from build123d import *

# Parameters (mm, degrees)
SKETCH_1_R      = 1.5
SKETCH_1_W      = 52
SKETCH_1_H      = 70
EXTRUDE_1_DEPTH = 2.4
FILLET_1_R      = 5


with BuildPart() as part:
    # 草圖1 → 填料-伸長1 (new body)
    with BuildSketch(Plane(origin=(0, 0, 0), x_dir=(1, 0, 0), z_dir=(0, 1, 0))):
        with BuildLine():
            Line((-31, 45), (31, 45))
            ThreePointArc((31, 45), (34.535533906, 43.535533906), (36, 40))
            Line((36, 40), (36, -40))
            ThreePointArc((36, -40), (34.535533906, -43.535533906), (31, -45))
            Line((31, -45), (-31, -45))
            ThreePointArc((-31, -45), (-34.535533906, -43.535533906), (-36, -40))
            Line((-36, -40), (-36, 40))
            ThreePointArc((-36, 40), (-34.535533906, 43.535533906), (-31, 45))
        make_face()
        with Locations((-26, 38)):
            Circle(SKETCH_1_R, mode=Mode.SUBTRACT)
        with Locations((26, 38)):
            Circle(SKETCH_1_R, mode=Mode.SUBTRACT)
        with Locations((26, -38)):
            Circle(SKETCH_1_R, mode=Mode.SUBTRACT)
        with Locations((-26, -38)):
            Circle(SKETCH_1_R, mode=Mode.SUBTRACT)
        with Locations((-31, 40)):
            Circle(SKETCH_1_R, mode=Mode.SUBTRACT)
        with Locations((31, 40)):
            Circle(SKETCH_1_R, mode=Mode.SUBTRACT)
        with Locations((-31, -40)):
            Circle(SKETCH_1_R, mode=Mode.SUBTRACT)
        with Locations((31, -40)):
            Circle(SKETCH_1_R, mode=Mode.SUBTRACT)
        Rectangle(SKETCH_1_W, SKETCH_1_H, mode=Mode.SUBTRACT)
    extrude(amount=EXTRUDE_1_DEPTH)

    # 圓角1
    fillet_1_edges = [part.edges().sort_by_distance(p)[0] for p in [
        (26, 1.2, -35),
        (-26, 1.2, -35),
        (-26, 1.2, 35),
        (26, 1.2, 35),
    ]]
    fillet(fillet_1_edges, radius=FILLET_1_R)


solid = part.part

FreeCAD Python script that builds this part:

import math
import FreeCAD as App
import Part
import Sketcher
from FreeCAD import Vector


def edges_at(feature, points):
    """Names of the edges that pass closest to the given points."""
    edges = feature.Shape.Edges
    near = lambda p: min(range(len(edges)), key=lambda i: edges[i].distToShape(Part.Vertex(*p))[0])
    return sorted({f"Edge{near(p) + 1}" for p in points})


def add_polygon(sketch, points):
    """Adds a closed chain of lines whose ends are joined by coincident constraints."""
    first, n = sketch.GeometryCount, len(points)
    for a, b in zip(points, points[1:] + points[:1]):
        sketch.addGeometry(Part.LineSegment(App.Vector(*a, 0), App.Vector(*b, 0)), False)
    for i in range(n):
        sketch.addConstraint(Sketcher.Constraint("Coincident", first + i, 2, first + (i + 1) % n, 1))

doc = App.newDocument("Part")
body = doc.addObject("PartDesign::Body", "Body")

# Sketch on XZ plane
sketch1 = body.newObject("Sketcher::SketchObject", "Sketch")
sketch1.AttachmentSupport = (doc.getObject("XZ_Plane"), [""])
sketch1.MapMode = "FlatFace"
sketch1.addGeometry(Part.LineSegment(Vector(31, -45, 0), Vector(-31, -45, 0)), False)  # 0
sketch1.addGeometry(Part.ArcOfCircle(Part.Circle(Vector(-31, -40, 0), Vector(0, 0, 1), 5), math.radians(180), math.radians(270)), False)  # 1
sketch1.addGeometry(Part.LineSegment(Vector(-36, -40, 0), Vector(-36, 40, 0)), False)  # 2
sketch1.addGeometry(Part.ArcOfCircle(Part.Circle(Vector(-31, 40, 0), Vector(0, 0, 1), 5), math.radians(90), math.radians(180)), False)  # 3
sketch1.addGeometry(Part.LineSegment(Vector(-31, 45, 0), Vector(31, 45, 0)), False)  # 4
sketch1.addGeometry(Part.ArcOfCircle(Part.Circle(Vector(31, 40, 0), Vector(0, 0, 1), 5), math.radians(0), math.radians(90)), False)  # 5
sketch1.addGeometry(Part.LineSegment(Vector(36, 40, 0), Vector(36, -40, 0)), False)  # 6
sketch1.addGeometry(Part.ArcOfCircle(Part.Circle(Vector(31, -40, 0), Vector(0, 0, 1), 5), math.radians(-90), math.radians(0)), False)  # 7
sketch1.addGeometry(Part.Circle(Vector(31, 40, 0), Vector(0, 0, 1), 1.5), False)  # 8
sketch1.addGeometry(Part.Circle(Vector(26, 38, 0), Vector(0, 0, 1), 1.5), False)  # 9
sketch1.addGeometry(Part.Circle(Vector(-26, 38, 0), Vector(0, 0, 1), 1.5), False)  # 10
sketch1.addGeometry(Part.Circle(Vector(-31, 40, 0), Vector(0, 0, 1), 1.5), False)  # 11
sketch1.addGeometry(Part.Circle(Vector(31, -40, 0), Vector(0, 0, 1), 1.5), False)  # 12
sketch1.addGeometry(Part.Circle(Vector(26, -38, 0), Vector(0, 0, 1), 1.5), False)  # 13
add_polygon(sketch1, [(-26, 35), (-26, -35), (26, -35), (26, 35)])  # lines 14-17
sketch1.addGeometry(Part.Circle(Vector(-26, -38, 0), Vector(0, 0, 1), 1.5), False)  # 18
sketch1.addGeometry(Part.Circle(Vector(-31, -40, 0), Vector(0, 0, 1), 1.5), False)  # 19
sketch1.addConstraint([
    Sketcher.Constraint("Tangent", 0, 2, 1, 2),
    Sketcher.Constraint("Tangent", 1, 1, 2, 1),
    Sketcher.Constraint("Tangent", 2, 2, 3, 2),
    Sketcher.Constraint("Tangent", 3, 1, 4, 1),
    Sketcher.Constraint("Tangent", 4, 2, 5, 2),
    Sketcher.Constraint("Tangent", 5, 1, 6, 1),
    Sketcher.Constraint("Tangent", 6, 2, 7, 2),
    Sketcher.Constraint("Tangent", 7, 1, 0, 1),
    Sketcher.Constraint("Horizontal", 0),
    Sketcher.Constraint("Vertical", 2),
    Sketcher.Constraint("Horizontal", 4),
    Sketcher.Constraint("Vertical", 6),
    Sketcher.Constraint("Vertical", 14),
    Sketcher.Constraint("Horizontal", 15),
    Sketcher.Constraint("Vertical", 16),
    Sketcher.Constraint("Horizontal", 17),
    Sketcher.Constraint("Coincident", 8, 3, 5, 3),
    Sketcher.Constraint("Coincident", 11, 3, 3, 3),
    Sketcher.Constraint("Coincident", 12, 3, 7, 3),
    Sketcher.Constraint("Coincident", 19, 3, 1, 3),
    Sketcher.Constraint("Equal", 1, 3),
    Sketcher.Constraint("Equal", 3, 5),
    Sketcher.Constraint("Equal", 5, 7),
    Sketcher.Constraint("Equal", 8, 9),
    Sketcher.Constraint("Equal", 9, 10),
    Sketcher.Constraint("Equal", 10, 11),
    Sketcher.Constraint("Equal", 11, 12),
    Sketcher.Constraint("Equal", 12, 13),
    Sketcher.Constraint("Equal", 13, 18),
    Sketcher.Constraint("Equal", 18, 19),
    Sketcher.Constraint("Symmetric", 1, 3, 5, 3, -1, 1),
    Sketcher.Constraint("Symmetric", 10, 3, 13, 3, -1, 1),
    Sketcher.Constraint("Symmetric", 9, 3, 18, 3, -1, 1),
    Sketcher.Constraint("Symmetric", 14, 2, 16, 2, -1, 1),
    Sketcher.Constraint("Symmetric", 9, 3, 10, 3, -2),
    Sketcher.Constraint("Vertical", 18, 3, 14, 2),
    Sketcher.Constraint("Diameter", 8, 3.0),
    Sketcher.Constraint("Radius", 1, 5.0),
    Sketcher.Constraint("DistanceX", 0, 2, 0, 1, 62.0),
    Sketcher.Constraint("DistanceX", 15, 1, 15, 2, 52.0),
    Sketcher.Constraint("DistanceY", 2, 1, 2, 2, 80.0),
    Sketcher.Constraint("DistanceY", 14, 2, 14, 1, 70.0),
    Sketcher.Constraint("DistanceY", -1, 1, 9, 3, 38.0),
])
pad1 = body.newObject("PartDesign::Pad", "Pad")
pad1.Profile = sketch1
pad1.Length = 2.4
pad1.Reversed = True
doc.recompute()

fillet = body.newObject("PartDesign::Fillet", "Fillet")
fillet.Base = (pad1, edges_at(pad1, [
    (26, 1.2, -35),
    (-26, 1.2, -35),
    (-26, 1.2, 35),
    (26, 1.2, 35),
]))
fillet.Radius = 5

doc.recompute()
